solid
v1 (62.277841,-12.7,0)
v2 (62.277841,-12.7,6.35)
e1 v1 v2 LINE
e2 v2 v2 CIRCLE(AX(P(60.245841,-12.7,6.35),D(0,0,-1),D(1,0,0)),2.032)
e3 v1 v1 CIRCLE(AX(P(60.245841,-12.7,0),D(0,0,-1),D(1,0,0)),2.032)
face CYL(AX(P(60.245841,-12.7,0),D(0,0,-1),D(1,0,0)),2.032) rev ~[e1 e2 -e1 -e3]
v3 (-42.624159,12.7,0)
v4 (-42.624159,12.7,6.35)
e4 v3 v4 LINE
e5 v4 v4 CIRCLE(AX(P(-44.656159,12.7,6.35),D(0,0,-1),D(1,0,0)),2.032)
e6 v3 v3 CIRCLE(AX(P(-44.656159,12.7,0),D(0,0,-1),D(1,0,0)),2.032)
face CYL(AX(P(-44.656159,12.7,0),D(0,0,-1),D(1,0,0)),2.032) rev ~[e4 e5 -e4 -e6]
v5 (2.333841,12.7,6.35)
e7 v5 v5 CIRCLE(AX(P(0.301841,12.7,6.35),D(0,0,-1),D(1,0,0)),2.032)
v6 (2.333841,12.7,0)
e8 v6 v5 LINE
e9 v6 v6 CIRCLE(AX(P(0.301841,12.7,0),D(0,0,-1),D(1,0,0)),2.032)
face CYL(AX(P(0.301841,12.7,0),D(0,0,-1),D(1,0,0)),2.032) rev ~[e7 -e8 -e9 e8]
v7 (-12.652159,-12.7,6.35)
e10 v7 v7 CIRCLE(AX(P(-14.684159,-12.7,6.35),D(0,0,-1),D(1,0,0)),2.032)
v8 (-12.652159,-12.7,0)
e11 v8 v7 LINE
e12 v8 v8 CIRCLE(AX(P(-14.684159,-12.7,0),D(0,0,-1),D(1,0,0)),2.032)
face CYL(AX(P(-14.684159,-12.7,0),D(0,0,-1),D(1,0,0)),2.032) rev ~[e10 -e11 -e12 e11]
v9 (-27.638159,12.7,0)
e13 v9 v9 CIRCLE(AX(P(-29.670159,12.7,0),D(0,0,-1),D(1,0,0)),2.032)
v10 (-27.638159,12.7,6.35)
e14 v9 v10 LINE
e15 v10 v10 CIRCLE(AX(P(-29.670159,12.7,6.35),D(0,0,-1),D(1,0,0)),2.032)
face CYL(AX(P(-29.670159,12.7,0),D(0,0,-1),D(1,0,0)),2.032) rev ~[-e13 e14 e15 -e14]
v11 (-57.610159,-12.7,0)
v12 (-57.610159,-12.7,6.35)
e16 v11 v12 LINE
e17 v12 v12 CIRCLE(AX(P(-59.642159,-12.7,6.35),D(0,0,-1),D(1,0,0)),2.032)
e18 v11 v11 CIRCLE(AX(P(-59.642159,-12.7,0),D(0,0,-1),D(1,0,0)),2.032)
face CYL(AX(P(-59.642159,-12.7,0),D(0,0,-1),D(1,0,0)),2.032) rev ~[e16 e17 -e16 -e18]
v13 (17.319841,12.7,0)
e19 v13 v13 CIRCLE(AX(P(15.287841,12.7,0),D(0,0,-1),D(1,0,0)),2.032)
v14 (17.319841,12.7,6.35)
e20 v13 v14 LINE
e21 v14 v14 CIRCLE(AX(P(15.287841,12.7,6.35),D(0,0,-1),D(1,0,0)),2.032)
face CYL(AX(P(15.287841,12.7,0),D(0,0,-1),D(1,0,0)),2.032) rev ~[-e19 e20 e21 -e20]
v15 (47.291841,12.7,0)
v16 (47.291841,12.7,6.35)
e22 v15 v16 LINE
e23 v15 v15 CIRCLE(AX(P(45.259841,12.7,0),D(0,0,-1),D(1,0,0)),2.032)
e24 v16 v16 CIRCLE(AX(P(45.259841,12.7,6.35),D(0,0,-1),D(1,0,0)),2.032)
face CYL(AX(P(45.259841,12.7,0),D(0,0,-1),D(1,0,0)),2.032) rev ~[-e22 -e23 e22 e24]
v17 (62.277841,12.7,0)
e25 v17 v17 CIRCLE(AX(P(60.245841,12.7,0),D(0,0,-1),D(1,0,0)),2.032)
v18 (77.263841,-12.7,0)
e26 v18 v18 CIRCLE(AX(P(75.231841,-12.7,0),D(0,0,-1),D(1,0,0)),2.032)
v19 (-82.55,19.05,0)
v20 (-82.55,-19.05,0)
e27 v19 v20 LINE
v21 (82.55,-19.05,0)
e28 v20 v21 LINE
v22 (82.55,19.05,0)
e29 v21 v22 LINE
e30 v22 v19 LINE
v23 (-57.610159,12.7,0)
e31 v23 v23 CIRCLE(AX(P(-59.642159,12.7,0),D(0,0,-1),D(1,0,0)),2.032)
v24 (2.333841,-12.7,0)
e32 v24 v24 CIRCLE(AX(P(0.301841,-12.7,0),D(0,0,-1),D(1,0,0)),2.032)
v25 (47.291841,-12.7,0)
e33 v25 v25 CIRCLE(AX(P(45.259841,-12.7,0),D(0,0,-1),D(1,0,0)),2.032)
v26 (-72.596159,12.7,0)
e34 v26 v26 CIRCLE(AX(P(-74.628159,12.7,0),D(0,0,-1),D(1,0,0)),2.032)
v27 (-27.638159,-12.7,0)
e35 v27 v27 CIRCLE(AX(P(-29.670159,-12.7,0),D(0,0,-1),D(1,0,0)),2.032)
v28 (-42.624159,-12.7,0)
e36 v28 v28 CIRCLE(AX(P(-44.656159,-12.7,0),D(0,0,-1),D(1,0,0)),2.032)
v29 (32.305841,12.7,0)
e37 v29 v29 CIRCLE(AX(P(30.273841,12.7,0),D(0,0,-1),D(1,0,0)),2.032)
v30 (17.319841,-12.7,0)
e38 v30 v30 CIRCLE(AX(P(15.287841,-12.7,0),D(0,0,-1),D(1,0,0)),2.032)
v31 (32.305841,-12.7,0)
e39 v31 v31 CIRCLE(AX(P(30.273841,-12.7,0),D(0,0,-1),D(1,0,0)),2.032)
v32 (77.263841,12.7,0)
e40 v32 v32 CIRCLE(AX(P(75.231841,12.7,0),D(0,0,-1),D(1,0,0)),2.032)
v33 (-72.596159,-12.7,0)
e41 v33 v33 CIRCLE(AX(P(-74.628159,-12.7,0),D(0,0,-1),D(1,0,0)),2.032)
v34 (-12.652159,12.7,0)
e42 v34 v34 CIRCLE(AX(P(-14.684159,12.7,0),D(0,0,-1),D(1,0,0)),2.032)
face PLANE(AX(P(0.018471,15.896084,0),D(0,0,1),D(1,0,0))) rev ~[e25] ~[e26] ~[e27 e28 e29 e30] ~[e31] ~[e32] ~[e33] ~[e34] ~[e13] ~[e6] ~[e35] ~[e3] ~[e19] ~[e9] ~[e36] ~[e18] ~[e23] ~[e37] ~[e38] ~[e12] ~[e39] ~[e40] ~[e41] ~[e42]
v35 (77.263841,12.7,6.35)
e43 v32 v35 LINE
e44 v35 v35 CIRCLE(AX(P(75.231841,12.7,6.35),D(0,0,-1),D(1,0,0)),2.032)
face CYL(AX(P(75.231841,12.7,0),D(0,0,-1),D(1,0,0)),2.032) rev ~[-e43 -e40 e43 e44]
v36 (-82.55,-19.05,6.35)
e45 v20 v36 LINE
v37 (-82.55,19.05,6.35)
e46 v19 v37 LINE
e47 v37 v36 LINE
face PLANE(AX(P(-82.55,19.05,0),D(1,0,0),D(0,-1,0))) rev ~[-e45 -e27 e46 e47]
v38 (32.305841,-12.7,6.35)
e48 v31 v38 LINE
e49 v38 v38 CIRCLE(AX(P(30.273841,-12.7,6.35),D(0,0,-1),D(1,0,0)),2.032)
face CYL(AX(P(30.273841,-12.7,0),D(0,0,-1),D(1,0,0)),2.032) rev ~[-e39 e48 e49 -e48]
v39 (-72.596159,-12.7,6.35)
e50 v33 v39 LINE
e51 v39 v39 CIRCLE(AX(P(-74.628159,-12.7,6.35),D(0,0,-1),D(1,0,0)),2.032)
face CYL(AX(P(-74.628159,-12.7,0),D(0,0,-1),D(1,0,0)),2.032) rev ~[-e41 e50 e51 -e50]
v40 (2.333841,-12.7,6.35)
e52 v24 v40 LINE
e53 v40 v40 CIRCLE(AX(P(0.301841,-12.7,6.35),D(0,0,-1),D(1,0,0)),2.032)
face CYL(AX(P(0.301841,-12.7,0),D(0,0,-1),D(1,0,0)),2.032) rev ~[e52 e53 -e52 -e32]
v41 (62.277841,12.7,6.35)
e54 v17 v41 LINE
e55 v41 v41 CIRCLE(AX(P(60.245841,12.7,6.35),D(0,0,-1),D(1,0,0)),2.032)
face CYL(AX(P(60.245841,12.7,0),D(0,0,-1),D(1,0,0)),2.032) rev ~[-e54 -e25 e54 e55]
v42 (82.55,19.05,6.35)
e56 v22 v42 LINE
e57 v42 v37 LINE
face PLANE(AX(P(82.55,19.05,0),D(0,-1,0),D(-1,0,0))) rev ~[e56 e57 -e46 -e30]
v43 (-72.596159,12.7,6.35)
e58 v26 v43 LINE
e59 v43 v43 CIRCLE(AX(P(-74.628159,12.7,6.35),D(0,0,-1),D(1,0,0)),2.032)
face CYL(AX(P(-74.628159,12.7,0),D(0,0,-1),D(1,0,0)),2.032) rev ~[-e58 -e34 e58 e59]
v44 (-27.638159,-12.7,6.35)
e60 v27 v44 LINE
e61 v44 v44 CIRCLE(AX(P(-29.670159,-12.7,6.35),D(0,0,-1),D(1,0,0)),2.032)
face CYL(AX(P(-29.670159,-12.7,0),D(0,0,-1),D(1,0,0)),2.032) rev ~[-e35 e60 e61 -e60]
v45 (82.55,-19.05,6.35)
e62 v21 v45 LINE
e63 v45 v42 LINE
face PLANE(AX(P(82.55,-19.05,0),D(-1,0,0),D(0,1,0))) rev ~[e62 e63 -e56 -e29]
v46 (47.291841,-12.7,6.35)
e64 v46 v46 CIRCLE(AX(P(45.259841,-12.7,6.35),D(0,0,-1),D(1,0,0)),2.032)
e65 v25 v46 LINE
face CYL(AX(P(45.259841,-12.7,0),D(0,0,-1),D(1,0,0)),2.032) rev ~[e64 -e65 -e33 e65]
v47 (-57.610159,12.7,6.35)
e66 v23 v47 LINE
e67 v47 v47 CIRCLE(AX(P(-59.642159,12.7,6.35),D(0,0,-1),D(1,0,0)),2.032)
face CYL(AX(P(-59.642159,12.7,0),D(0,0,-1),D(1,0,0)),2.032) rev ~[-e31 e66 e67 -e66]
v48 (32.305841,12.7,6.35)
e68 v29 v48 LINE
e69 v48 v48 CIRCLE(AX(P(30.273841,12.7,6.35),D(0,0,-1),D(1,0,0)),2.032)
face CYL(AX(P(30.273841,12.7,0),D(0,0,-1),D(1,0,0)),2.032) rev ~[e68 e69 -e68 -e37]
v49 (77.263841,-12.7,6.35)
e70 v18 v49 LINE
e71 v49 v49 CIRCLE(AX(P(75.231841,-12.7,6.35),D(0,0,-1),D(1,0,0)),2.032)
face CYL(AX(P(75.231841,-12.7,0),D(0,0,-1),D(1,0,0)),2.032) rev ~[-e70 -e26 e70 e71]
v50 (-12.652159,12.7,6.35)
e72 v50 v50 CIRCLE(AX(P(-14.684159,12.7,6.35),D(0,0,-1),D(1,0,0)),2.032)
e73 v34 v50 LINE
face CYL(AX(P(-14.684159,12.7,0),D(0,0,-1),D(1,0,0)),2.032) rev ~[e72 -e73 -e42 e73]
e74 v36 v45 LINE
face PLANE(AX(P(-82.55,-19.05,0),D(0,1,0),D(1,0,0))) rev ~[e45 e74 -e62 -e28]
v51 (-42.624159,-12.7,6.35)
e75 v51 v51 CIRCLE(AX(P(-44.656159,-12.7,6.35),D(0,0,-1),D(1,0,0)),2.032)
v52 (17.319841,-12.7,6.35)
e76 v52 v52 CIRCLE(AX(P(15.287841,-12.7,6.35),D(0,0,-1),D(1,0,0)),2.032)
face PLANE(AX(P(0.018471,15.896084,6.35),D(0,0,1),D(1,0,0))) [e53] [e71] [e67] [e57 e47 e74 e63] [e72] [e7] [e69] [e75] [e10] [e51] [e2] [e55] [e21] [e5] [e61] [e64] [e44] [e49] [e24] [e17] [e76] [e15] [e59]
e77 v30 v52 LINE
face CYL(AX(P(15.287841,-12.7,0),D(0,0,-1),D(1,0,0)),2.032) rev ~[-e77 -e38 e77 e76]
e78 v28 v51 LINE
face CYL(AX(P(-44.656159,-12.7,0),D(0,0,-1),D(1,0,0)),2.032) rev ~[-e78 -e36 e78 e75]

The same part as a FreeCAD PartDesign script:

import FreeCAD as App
import Part
import Sketcher
Q = App.Units.Quantity

doc = App.newDocument("Part")
body = doc.addObject("PartDesign::Body", "Body")

# Sketch on XY plane
sketch1 = doc.addObject("Sketcher::SketchObject", "Sketch")
body.addObject(sketch1)
sketch1.AttachmentSupport = (doc.XY_Plane, [""])
sketch1.MapMode = "FlatFace"
sketch1.addGeometry(Part.LineSegment(App.Vector(82.5, 19.1, 0), App.Vector(-82.5, 19.1, 0)), False)
sketch1.addGeometry(Part.LineSegment(App.Vector(-82.5, 19.1, 0), App.Vector(-82.5, -19.1, 0)), False)
sketch1.addGeometry(Part.LineSegment(App.Vector(-82.5, -19.1, 0), App.Vector(82.5, -19.1, 0)), False)
sketch1.addGeometry(Part.LineSegment(App.Vector(82.5, -19.1, 0), App.Vector(82.5, 19.1, 0)), False)
sketch1.addGeometry(Part.Circle(App.Vector(-74.6, -12.7, 0), App.Vector(0, 0, 1), 2), False)
sketch1.addGeometry(Part.Circle(App.Vector(-59.6, -12.7, 0), App.Vector(0, 0, 1), 2), False)
sketch1.addGeometry(Part.Circle(App.Vector(-44.7, -12.7, 0), App.Vector(0, 0, 1), 2), False)
sketch1.addGeometry(Part.Circle(App.Vector(-29.7, -12.7, 0), App.Vector(0, 0, 1), 2), False)
sketch1.addGeometry(Part.Circle(App.Vector(-14.7, -12.7, 0), App.Vector(0, 0, 1), 2), False)
sketch1.addGeometry(Part.Circle(App.Vector(0.3, -12.7, 0), App.Vector(0, 0, 1), 2), False)
sketch1.addGeometry(Part.Circle(App.Vector(15.3, -12.7, 0), App.Vector(0, 0, 1), 2), False)
sketch1.addGeometry(Part.Circle(App.Vector(30.3, -12.7, 0), App.Vector(0, 0, 1), 2), False)
sketch1.addGeometry(Part.Circle(App.Vector(45.3, -12.7, 0), App.Vector(0, 0, 1), 2), False)
sketch1.addGeometry(Part.Circle(App.Vector(60.2, -12.7, 0), App.Vector(0, 0, 1), 2), False)
sketch1.addGeometry(Part.Circle(App.Vector(75.2, -12.7, 0), App.Vector(0, 0, 1), 2), False)
sketch1.addGeometry(Part.Circle(App.Vector(-74.6, 12.7, 0), App.Vector(0, 0, 1), 2), False)
sketch1.addGeometry(Part.Circle(App.Vector(-59.6, 12.7, 0), App.Vector(0, 0, 1), 2), False)
sketch1.addGeometry(Part.Circle(App.Vector(-44.7, 12.7, 0), App.Vector(0, 0, 1), 2), False)
sketch1.addGeometry(Part.Circle(App.Vector(-29.7, 12.7, 0), App.Vector(0, 0, 1), 2), False)
sketch1.addGeometry(Part.Circle(App.Vector(-14.7, 12.7, 0), App.Vector(0, 0, 1), 2), False)
sketch1.addGeometry(Part.Circle(App.Vector(0.3, 12.7, 0), App.Vector(0, 0, 1), 2), False)
sketch1.addGeometry(Part.Circle(App.Vector(15.3, 12.7, 0), App.Vector(0, 0, 1), 2), False)
sketch1.addGeometry(Part.Circle(App.Vector(30.3, 12.7, 0), App.Vector(0, 0, 1), 2), False)
sketch1.addGeometry(Part.Circle(App.Vector(45.3, 12.7, 0), App.Vector(0, 0, 1), 2), False)
sketch1.addGeometry(Part.Circle(App.Vector(60.2, 12.7, 0), App.Vector(0, 0, 1), 2), False)
sketch1.addGeometry(Part.Circle(App.Vector(75.2, 12.7, 0), App.Vector(0, 0, 1), 2), False)
sketch1.addConstraint(Sketcher.Constraint("Coincident", 0, 2, 1, 1))
sketch1.addConstraint(Sketcher.Constraint("Coincident", 1, 2, 2, 1))
sketch1.addConstraint(Sketcher.Constraint("Coincident", 2, 2, 3, 1))
sketch1.addConstraint(Sketcher.Constraint("Coincident", 3, 2, 0, 1))
sketch1.addConstraint(Sketcher.Constraint("Horizontal", 0))
sketch1.addConstraint(Sketcher.Constraint("Vertical", 1))
sketch1.addConstraint(Sketcher.Constraint("Horizontal", 2))
sketch1.addConstraint(Sketcher.Constraint("Vertical", 3))
sketch1.addConstraint(Sketcher.Constraint("Equal", 4, 5))
sketch1.addConstraint(Sketcher.Constraint("Equal", 5, 6))
sketch1.addConstraint(Sketcher.Constraint("Equal", 6, 7))
sketch1.addConstraint(Sketcher.Constraint("Equal", 7, 8))
sketch1.addConstraint(Sketcher.Constraint("Equal", 8, 9))
sketch1.addConstraint(Sketcher.Constraint("Equal", 9, 10))
sketch1.addConstraint(Sketcher.Constraint("Equal", 10, 11))
sketch1.addConstraint(Sketcher.Constraint("Equal", 11, 12))
sketch1.addConstraint(Sketcher.Constraint("Equal", 12, 13))
sketch1.addConstraint(Sketcher.Constraint("Equal", 13, 14))
sketch1.addConstraint(Sketcher.Constraint("Equal", 14, 15))
sketch1.addConstraint(Sketcher.Constraint("Equal", 15, 16))
sketch1.addConstraint(Sketcher.Constraint("Equal", 16, 17))
sketch1.addConstraint(Sketcher.Constraint("Equal", 17, 18))
sketch1.addConstraint(Sketcher.Constraint("Equal", 18, 19))
sketch1.addConstraint(Sketcher.Constraint("Equal", 19, 20))
sketch1.addConstraint(Sketcher.Constraint("Equal", 20, 21))
sketch1.addConstraint(Sketcher.Constraint("Equal", 21, 22))
sketch1.addConstraint(Sketcher.Constraint("Equal", 22, 23))
sketch1.addConstraint(Sketcher.Constraint("Equal", 23, 24))
sketch1.addConstraint(Sketcher.Constraint("Equal", 24, 25))
sketch1.addConstraint(Sketcher.Constraint("Symmetric", 0, 2, 2, 2, -1, 1))
sketch1.addConstraint(Sketcher.Constraint("Symmetric", 4, 3, 15, 3, -1))
sketch1.addConstraint(Sketcher.Constraint("Symmetric", 5, 3, 16, 3, -1))
sketch1.addConstraint(Sketcher.Constraint("Symmetric", 6, 3, 17, 3, -1))
sketch1.addConstraint(Sketcher.Constraint("Symmetric", 7, 3, 18, 3, -1))
sketch1.addConstraint(Sketcher.Constraint("Symmetric", 8, 3, 19, 3, -1))
sketch1.addConstraint(Sketcher.Constraint("Symmetric", 9, 3, 20, 3, -1))
sketch1.addConstraint(Sketcher.Constraint("Symmetric", 10, 3, 21, 3, -1))
sketch1.addConstraint(Sketcher.Constraint("Symmetric", 11, 3, 22, 3, -1))
sketch1.addConstraint(Sketcher.Constraint("Symmetric", 12, 3, 23, 3, -1))
sketch1.addConstraint(Sketcher.Constraint("Symmetric", 13, 3, 24, 3, -1))
sketch1.addConstraint(Sketcher.Constraint("Symmetric", 14, 3, 25, 3, -1))
sketch1.addConstraint(Sketcher.Constraint("Horizontal", 4, 3, 5, 3))
sketch1.addConstraint(Sketcher.Constraint("Horizontal", 5, 3, 6, 3))
sketch1.addConstraint(Sketcher.Constraint("Horizontal", 6, 3, 7, 3))
sketch1.addConstraint(Sketcher.Constraint("Horizontal", 7, 3, 8, 3))
sketch1.addConstraint(Sketcher.Constraint("Horizontal", 8, 3, 9, 3))
sketch1.addConstraint(Sketcher.Constraint("Horizontal", 9, 3, 10, 3))
sketch1.addConstraint(Sketcher.Constraint("Horizontal", 10, 3, 11, 3))
sketch1.addConstraint(Sketcher.Constraint("Horizontal", 11, 3, 12, 3))
sketch1.addConstraint(Sketcher.Constraint("Horizontal", 12, 3, 13, 3))
sketch1.addConstraint(Sketcher.Constraint("Horizontal", 13, 3, 14, 3))
sketch1.addConstraint(Sketcher.Constraint("Diameter", 4, Q("0.16 in")))
sketch1.addConstraint(Sketcher.Constraint("DistanceX", 0, 2, 0, 1, Q("6.5 in")))
sketch1.addConstraint(Sketcher.Constraint("DistanceY", 1, 2, 1, 1, Q("1.5 in")))
sketch1.addConstraint(Sketcher.Constraint("DistanceY", 4, 3, 15, 3, Q("1 in")))
sketch1.addConstraint(Sketcher.Constraint("DistanceX", 4, 3, 5, 3, Q("0.59 in")))
sketch1.addConstraint(Sketcher.Constraint("DistanceX", 5, 3, 6, 3, Q("0.59 in")))
sketch1.addConstraint(Sketcher.Constraint("DistanceX", 6, 3, 7, 3, Q("0.59 in")))
sketch1.addConstraint(Sketcher.Constraint("DistanceX", 7, 3, 8, 3, Q("0.59 in")))
sketch1.addConstraint(Sketcher.Constraint("DistanceX", 8, 3, 9, 3, Q("0.59 in")))
sketch1.addConstraint(Sketcher.Constraint("DistanceX", 9, 3, 10, 3, Q("0.59 in")))
sketch1.addConstraint(Sketcher.Constraint("DistanceX", 10, 3, 11, 3, Q("0.59 in")))
sketch1.addConstraint(Sketcher.Constraint("DistanceX", 11, 3, 12, 3, Q("0.59 in")))
sketch1.addConstraint(Sketcher.Constraint("DistanceX", 12, 3, 13, 3, Q("0.59 in")))
sketch1.addConstraint(Sketcher.Constraint("DistanceX", 13, 3, 14, 3, Q("0.59 in")))
sketch1.addConstraint(Sketcher.Constraint("DistanceX", 4, 3, -1, 1, 74.628159))
pad1 = doc.addObject("PartDesign::Pad", "Pad")
body.addObject(pad1)
pad1.Profile = sketch1
pad1.Length = Q("0.25 in")

doc.recompute()
